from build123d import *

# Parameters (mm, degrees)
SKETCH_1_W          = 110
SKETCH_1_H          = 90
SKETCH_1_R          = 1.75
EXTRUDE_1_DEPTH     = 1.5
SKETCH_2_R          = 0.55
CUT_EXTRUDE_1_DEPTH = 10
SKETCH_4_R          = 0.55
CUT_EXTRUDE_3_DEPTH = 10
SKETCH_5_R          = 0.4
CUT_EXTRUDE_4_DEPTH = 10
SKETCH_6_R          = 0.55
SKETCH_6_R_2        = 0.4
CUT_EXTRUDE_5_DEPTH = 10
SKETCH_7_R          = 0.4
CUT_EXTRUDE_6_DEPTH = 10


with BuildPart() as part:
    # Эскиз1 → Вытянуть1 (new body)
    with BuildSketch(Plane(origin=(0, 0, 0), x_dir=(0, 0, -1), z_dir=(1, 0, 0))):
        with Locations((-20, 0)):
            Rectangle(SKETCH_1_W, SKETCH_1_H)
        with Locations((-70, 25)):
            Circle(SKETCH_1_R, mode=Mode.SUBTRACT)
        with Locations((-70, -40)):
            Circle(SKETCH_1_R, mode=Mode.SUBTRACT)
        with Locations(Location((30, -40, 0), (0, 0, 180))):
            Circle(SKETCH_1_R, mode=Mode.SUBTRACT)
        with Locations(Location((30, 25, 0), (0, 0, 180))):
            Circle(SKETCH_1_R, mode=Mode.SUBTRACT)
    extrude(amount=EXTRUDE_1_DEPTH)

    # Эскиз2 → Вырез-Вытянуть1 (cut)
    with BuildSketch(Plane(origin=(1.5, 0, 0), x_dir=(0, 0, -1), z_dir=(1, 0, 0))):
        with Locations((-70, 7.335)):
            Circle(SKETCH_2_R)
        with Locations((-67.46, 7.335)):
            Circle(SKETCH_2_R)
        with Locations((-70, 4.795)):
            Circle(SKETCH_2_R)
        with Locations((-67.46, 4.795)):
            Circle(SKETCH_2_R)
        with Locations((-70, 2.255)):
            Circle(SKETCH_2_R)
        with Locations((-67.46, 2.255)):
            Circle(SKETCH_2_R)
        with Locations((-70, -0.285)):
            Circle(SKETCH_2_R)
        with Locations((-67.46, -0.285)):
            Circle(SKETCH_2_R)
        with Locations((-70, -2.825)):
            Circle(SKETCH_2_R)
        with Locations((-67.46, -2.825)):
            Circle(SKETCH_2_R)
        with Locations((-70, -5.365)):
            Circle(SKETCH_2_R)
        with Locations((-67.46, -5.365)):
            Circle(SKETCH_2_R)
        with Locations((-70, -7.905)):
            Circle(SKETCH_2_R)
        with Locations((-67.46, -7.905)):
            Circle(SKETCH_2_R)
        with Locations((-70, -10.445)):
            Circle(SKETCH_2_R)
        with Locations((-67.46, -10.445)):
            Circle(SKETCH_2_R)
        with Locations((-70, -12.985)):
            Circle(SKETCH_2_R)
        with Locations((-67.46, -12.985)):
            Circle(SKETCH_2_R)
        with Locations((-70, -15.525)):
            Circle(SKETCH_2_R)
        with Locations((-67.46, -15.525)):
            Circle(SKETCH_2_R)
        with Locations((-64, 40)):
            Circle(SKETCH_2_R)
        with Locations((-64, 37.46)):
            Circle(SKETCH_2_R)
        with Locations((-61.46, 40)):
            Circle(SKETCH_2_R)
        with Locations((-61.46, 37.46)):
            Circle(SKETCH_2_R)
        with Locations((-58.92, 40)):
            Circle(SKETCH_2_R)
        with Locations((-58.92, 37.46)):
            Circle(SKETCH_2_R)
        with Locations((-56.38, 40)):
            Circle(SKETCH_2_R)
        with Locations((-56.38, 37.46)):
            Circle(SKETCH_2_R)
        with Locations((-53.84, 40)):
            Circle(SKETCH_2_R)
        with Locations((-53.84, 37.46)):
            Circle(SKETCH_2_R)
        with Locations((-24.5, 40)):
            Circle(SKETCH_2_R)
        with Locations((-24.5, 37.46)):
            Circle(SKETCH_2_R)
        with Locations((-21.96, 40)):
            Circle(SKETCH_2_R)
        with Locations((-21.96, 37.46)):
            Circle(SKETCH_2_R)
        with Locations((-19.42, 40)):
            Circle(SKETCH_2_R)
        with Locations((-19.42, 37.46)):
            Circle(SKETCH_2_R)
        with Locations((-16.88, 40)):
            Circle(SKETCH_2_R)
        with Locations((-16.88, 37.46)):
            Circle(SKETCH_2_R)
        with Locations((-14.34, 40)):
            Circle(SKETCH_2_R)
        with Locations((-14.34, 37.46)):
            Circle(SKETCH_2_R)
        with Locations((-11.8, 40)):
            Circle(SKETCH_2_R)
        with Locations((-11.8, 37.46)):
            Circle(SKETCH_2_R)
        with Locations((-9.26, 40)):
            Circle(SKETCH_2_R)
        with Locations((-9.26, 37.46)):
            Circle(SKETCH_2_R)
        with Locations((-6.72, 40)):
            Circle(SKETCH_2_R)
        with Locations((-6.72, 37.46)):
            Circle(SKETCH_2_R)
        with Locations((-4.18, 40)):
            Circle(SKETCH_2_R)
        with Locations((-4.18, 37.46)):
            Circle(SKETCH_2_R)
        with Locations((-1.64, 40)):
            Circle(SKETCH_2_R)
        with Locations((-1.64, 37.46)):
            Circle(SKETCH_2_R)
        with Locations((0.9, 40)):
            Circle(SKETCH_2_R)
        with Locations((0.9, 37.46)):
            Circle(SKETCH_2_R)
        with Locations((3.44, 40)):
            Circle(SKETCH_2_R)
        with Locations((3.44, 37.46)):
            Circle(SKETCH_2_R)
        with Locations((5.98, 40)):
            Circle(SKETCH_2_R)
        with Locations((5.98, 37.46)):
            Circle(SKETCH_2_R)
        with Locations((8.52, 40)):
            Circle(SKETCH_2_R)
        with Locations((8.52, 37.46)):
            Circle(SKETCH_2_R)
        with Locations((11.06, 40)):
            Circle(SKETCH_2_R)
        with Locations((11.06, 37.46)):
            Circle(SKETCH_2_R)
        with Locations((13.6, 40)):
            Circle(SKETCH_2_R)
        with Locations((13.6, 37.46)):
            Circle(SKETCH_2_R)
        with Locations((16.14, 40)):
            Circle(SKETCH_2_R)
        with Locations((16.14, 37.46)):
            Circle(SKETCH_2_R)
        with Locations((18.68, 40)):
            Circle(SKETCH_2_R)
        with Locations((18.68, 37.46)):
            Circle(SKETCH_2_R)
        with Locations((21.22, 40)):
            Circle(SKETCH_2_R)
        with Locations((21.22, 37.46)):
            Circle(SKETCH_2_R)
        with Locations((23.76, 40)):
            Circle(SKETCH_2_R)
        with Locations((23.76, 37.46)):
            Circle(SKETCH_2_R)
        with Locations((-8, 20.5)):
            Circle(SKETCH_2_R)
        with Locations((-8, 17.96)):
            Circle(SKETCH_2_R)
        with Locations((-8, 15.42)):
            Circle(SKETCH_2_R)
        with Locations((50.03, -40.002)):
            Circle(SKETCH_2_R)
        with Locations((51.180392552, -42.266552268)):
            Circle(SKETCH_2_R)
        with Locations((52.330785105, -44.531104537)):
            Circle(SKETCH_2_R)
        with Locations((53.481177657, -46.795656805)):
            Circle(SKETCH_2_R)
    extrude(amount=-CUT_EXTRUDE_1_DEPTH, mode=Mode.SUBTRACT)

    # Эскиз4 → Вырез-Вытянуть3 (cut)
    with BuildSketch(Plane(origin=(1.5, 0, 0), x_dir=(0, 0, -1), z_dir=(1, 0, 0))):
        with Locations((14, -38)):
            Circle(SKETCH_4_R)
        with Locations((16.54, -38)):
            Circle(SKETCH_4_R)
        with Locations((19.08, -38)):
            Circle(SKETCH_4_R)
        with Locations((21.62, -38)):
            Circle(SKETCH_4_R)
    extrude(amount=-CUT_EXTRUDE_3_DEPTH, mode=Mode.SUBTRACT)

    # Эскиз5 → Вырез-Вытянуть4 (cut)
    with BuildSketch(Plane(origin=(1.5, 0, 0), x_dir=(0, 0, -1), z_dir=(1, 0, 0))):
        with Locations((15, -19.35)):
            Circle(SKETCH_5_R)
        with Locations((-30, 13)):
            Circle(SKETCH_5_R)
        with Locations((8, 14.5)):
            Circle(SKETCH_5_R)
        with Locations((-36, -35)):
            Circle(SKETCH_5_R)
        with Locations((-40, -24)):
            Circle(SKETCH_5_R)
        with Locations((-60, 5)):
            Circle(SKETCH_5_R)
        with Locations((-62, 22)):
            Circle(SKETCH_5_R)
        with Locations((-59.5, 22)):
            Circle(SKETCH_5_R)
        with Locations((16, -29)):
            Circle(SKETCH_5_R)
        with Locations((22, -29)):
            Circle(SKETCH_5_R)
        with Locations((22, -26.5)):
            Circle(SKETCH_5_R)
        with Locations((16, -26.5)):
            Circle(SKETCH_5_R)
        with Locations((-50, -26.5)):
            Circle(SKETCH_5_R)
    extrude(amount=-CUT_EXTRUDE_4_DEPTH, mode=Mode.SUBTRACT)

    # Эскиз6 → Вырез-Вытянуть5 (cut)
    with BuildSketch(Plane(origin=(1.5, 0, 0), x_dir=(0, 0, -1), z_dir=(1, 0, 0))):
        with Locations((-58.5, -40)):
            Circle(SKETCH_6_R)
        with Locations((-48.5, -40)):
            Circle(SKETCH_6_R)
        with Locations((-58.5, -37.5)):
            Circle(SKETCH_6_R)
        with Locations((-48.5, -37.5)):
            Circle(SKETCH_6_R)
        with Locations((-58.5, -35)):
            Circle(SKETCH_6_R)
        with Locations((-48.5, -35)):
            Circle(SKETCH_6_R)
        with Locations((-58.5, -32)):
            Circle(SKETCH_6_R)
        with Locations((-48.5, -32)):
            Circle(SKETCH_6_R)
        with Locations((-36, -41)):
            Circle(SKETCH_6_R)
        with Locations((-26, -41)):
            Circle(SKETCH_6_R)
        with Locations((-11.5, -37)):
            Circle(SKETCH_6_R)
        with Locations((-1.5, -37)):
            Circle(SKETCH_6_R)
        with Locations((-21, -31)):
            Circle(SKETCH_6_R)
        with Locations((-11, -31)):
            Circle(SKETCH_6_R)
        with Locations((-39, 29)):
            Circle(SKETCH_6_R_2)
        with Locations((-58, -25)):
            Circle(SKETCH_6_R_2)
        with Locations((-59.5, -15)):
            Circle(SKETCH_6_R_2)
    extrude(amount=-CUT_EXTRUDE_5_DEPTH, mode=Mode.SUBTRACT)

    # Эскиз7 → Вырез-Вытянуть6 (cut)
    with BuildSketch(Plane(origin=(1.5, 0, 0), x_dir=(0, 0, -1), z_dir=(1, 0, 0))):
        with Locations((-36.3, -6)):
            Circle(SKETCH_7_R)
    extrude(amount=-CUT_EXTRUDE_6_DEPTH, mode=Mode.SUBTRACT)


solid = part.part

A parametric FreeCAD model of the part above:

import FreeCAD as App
import Part
import Sketcher

V = App.Vector

doc = App.newDocument("Part")
params = doc.addObject("Spreadsheet::Sheet", "Params")
for row, (alias, value) in enumerate([
    ("sketch1_diameter", "3.5 mm"),
    ("sketch1_width", "90 mm"),
    ("sketch1_height", "110 mm"),
    ("pad1_length", "1.5 mm"),
    ("sketch2_diameter", "1.1 mm"),
    ("pocket1_length", "10 mm"),
    ("sketch3_diameter", "1.1 mm"),
    ("pocket2_length", "10 mm"),
    ("sketch4_diameter", "0.8 mm"),
    ("pocket3_length", "10 mm"),
    ("sketch5_diameter", "1.1 mm"),
    ("sketch5_diameter2", "0.8 mm"),
    ("pocket4_length", "10 mm"),
    ("sketch6_diameter", "0.8 mm"),
    ("pocket5_length", "10 mm"),
], start=1):
    params.set(f"A{row}", alias)
    params.set(f"B{row}", "=" + value)
    params.setAlias(f"B{row}", alias)

body = doc.addObject("PartDesign::Body", "Body")

sketch1 = body.newObject("Sketcher::SketchObject", "Sketch")
sketch1.AttachmentSupport = (doc.getObject("YZ_Plane"), [""])
sketch1.MapMode = "FlatFace"
sketch1.addGeometry([
    Part.LineSegment(V(45, 75, 0), V(-45, 75, 0)),
    Part.LineSegment(V(-45, 75, 0), V(-45, -35, 0)),
    Part.LineSegment(V(-45, -35, 0), V(45, -35, 0)),
    Part.LineSegment(V(45, -35, 0), V(45, 75, 0)),
    Part.Circle(V(-40, 70, 0), V(0, 0, 1), 1.8),
    Part.Circle(V(-40, -30, 0), V(0, 0, 1), 1.8),
    Part.Circle(V(25, 70, 0), V(0, 0, 1), 1.8),
    Part.Circle(V(25, -30, 0), V(0, 0, 1), 1.8),
], False)
sketch1.addConstraint([
    Sketcher.Constraint("Coincident", 0, 2, 1, 1),
    Sketcher.Constraint("Coincident", 1, 2, 2, 1),
    Sketcher.Constraint("Coincident", 2, 2, 3, 1),
    Sketcher.Constraint("Coincident", 3, 2, 0, 1),
    Sketcher.Constraint("Horizontal", 0),
    Sketcher.Constraint("Vertical", 1),
    Sketcher.Constraint("Horizontal", 2),
    Sketcher.Constraint("Vertical", 3),
    Sketcher.Constraint("Equal", 4, 5),
    Sketcher.Constraint("Equal", 5, 6),
    Sketcher.Constraint("Equal", 6, 7),
    Sketcher.Constraint("Horizontal", 4, 3, 6, 3),
    Sketcher.Constraint("Horizontal", 5, 3, 7, 3),
    Sketcher.Constraint("Vertical", 4, 3, 5, 3),
    Sketcher.Constraint("Vertical", 6, 3, 7, 3),
    Sketcher.Constraint("Diameter", 4, 3.5),
    Sketcher.Constraint("DistanceX", 0, 2, 0, 1, 90.0),
    Sketcher.Constraint("DistanceY", 1, 2, 1, 1, 110.0),
    Sketcher.Constraint("DistanceX", 4, 3, -1, 1, 40.0),
    Sketcher.Constraint("DistanceY", -1, 1, 4, 3, 70.0),
    Sketcher.Constraint("DistanceY", 5, 3, -1, 1, 30.0),
    Sketcher.Constraint("DistanceX", -1, 1, 6, 3, 25.0),
    Sketcher.Constraint("DistanceX", 0, 2, -1, 1, 45.0),
    Sketcher.Constraint("DistanceY", -1, 1, 0, 2, 75.0),
])
sketch1.setExpression("Constraints[15]", "Params.sketch1_diameter")
sketch1.setExpression("Constraints[16]", "Params.sketch1_width")
sketch1.setExpression("Constraints[17]", "Params.sketch1_height")
pad1 = body.newObject("PartDesign::Pad", "Pad")
pad1.Profile = sketch1
pad1.setExpression("Length", "Params.pad1_length")

sketch2 = body.newObject("Sketcher::SketchObject", "Sketch001")
sketch2.AttachmentSupport = (doc.getObject("YZ_Plane"), [""])
sketch2.MapMode = "FlatFace"
sketch2.AttachmentOffset = App.Placement(V(0, 0, 1.5), App.Rotation())
sketch2.addGeometry([
    Part.Circle(V(7.3, 70, 0), V(0, 0, 1), 0.6),
    Part.Circle(V(7.3, 67.5, 0), V(0, 0, 1), 0.6),
    Part.Circle(V(4.8, 70, 0), V(0, 0, 1), 0.6),
    Part.Circle(V(4.8, 67.5, 0), V(0, 0, 1), 0.6),
    Part.Circle(V(2.3, 70, 0), V(0, 0, 1), 0.6),
    Part.Circle(V(2.3, 67.5, 0), V(0, 0, 1), 0.6),
    Part.Circle(V(-0.3, 70, 0), V(0, 0, 1), 0.6),
    Part.Circle(V(-0.3, 67.5, 0), V(0, 0, 1), 0.6),
    Part.Circle(V(-2.8, 70, 0), V(0, 0, 1), 0.6),
    Part.Circle(V(-2.8, 67.5, 0), V(0, 0, 1), 0.6),
    Part.Circle(V(-5.4, 70, 0), V(0, 0, 1), 0.6),
    Part.Circle(V(-5.4, 67.5, 0), V(0, 0, 1), 0.6),
    Part.Circle(V(-7.9, 70, 0), V(0, 0, 1), 0.6),
    Part.Circle(V(-7.9, 67.5, 0), V(0, 0, 1), 0.6),
    Part.Circle(V(-10.4, 70, 0), V(0, 0, 1), 0.6),
    Part.Circle(V(-10.4, 67.5, 0), V(0, 0, 1), 0.6),
    Part.Circle(V(-13, 70, 0), V(0, 0, 1), 0.6),
    Part.Circle(V(-13, 67.5, 0), V(0, 0, 1), 0.6),
    Part.Circle(V(-15.5, 70, 0), V(0, 0, 1), 0.6),
    Part.Circle(V(-15.5, 67.5, 0), V(0, 0, 1), 0.6),
    Part.Circle(V(40, 64, 0), V(0, 0, 1), 0.6),
    Part.Circle(V(37.5, 64, 0), V(0, 0, 1), 0.6),
    Part.Circle(V(40, 61.5, 0), V(0, 0, 1), 0.6),
    Part.Circle(V(37.5, 61.5, 0), V(0, 0, 1), 0.6),
    Part.Circle(V(40, 58.9, 0), V(0, 0, 1), 0.6),
    Part.Circle(V(37.5, 58.9, 0), V(0, 0, 1), 0.6),
    Part.Circle(V(40, 56.4, 0), V(0, 0, 1), 0.6),
    Part.Circle(V(37.5, 56.4, 0), V(0, 0, 1), 0.6),
    Part.Circle(V(40, 53.8, 0), V(0, 0, 1), 0.6),
    Part.Circle(V(37.5, 53.8, 0), V(0, 0, 1), 0.6),
    Part.Circle(V(40, 24.5, 0), V(0, 0, 1), 0.6),
    Part.Circle(V(37.5, 24.5, 0), V(0, 0, 1), 0.6),
    Part.Circle(V(40, 22, 0), V(0, 0, 1), 0.6),
    Part.Circle(V(37.5, 22, 0), V(0, 0, 1), 0.6),
    Part.Circle(V(40, 19.4, 0), V(0, 0, 1), 0.6),
    Part.Circle(V(37.5, 19.4, 0), V(0, 0, 1), 0.6),
    Part.Circle(V(40, 16.9, 0), V(0, 0, 1), 0.6),
    Part.Circle(V(37.5, 16.9, 0), V(0, 0, 1), 0.6),
    Part.Circle(V(40, 14.3, 0), V(0, 0, 1), 0.6),
    Part.Circle(V(37.5, 14.3, 0), V(0, 0, 1), 0.6),
    Part.Circle(V(40, 11.8, 0), V(0, 0, 1), 0.6),
    Part.Circle(V(37.5, 11.8, 0), V(0, 0, 1), 0.6),
    Part.Circle(V(40, 9.3, 0), V(0, 0, 1), 0.6),
    Part.Circle(V(37.5, 9.3, 0), V(0, 0, 1), 0.6),
    Part.Circle(V(40, 6.7, 0), V(0, 0, 1), 0.6),
    Part.Circle(V(37.5, 6.7, 0), V(0, 0, 1), 0.6),
    Part.Circle(V(40, 4.2, 0), V(0, 0, 1), 0.6),
    Part.Circle(V(37.5, 4.2, 0), V(0, 0, 1), 0.6),
    Part.Circle(V(40, 1.6, 0), V(0, 0, 1), 0.6),
    Part.Circle(V(37.5, 1.6, 0), V(0, 0, 1), 0.6),
    Part.Circle(V(40, -0.9, 0), V(0, 0, 1), 0.6),
    Part.Circle(V(37.5, -0.9, 0), V(0, 0, 1), 0.6),
    Part.Circle(V(40, -3.4, 0), V(0, 0, 1), 0.6),
    Part.Circle(V(37.5, -3.4, 0), V(0, 0, 1), 0.6),
    Part.Circle(V(40, -6, 0), V(0, 0, 1), 0.6),
    Part.Circle(V(37.5, -6, 0), V(0, 0, 1), 0.6),
    Part.Circle(V(40, -8.5, 0), V(0, 0, 1), 0.6),
    Part.Circle(V(37.5, -8.5, 0), V(0, 0, 1), 0.6),
    Part.Circle(V(40, -11.1, 0), V(0, 0, 1), 0.6),
    Part.Circle(V(37.5, -11.1, 0), V(0, 0, 1), 0.6),
    Part.Circle(V(40, -13.6, 0), V(0, 0, 1), 0.6),
    Part.Circle(V(37.5, -13.6, 0), V(0, 0, 1), 0.6),
    Part.Circle(V(40, -16.1, 0), V(0, 0, 1), 0.6),
    Part.Circle(V(37.5, -16.1, 0), V(0, 0, 1), 0.6),
    Part.Circle(V(40, -18.7, 0), V(0, 0, 1), 0.6),
    Part.Circle(V(37.5, -18.7, 0), V(0, 0, 1), 0.6),
    Part.Circle(V(40, -21.2, 0), V(0, 0, 1), 0.6),
    Part.Circle(V(37.5, -21.2, 0), V(0, 0, 1), 0.6),
    Part.Circle(V(40, -23.8, 0), V(0, 0, 1), 0.6),
    Part.Circle(V(37.5, -23.8, 0), V(0, 0, 1), 0.6),
    Part.Circle(V(20.5, 8, 0), V(0, 0, 1), 0.6),
    Part.Circle(V(18, 8, 0), V(0, 0, 1), 0.6),
    Part.Circle(V(15.4, 8, 0), V(0, 0, 1), 0.6),
    Part.Circle(V(-40, -50, 0), V(0, 0, 1), 0.6),
    Part.Circle(V(-42.3, -51.2, 0), V(0, 0, 1), 0.6),
    Part.Circle(V(-44.5, -52.3, 0), V(0, 0, 1), 0.6),
    Part.Circle(V(-46.8, -53.5, 0), V(0, 0, 1), 0.6),
], False)
sketch2.addConstraint([
    Sketcher.Constraint("Equal", 0, 1),
    Sketcher.Constraint("Equal", 1, 2),
    Sketcher.Constraint("Equal", 2, 3),
    Sketcher.Constraint("Equal", 3, 4),
    Sketcher.Constraint("Equal", 4, 5),
    Sketcher.Constraint("Equal", 5, 6),
    Sketcher.Constraint("Equal", 6, 7),
    Sketcher.Constraint("Equal", 7, 8),
    Sketcher.Constraint("Equal", 8, 9),
    Sketcher.Constraint("Equal", 9, 10),
    Sketcher.Constraint("Equal", 10, 11),
    Sketcher.Constraint("Equal", 11, 12),
    Sketcher.Constraint("Equal", 12, 13),
    Sketcher.Constraint("Equal", 13, 14),
    Sketcher.Constraint("Equal", 14, 15),
    Sketcher.Constraint("Equal", 15, 16),
    Sketcher.Constraint("Equal", 16, 17),
    Sketcher.Constraint("Equal", 17, 18),
    Sketcher.Constraint("Equal", 18, 19),
    Sketcher.Constraint("Equal", 19, 20),
    Sketcher.Constraint("Equal", 20, 21),
    Sketcher.Constraint("Equal", 21, 22),
    Sketcher.Constraint("Equal", 22, 23),
    Sketcher.Constraint("Equal", 23, 24),
    Sketcher.Constraint("Equal", 24, 25),
    Sketcher.Constraint("Equal", 25, 26),
    Sketcher.Constraint("Equal", 26, 27),
    Sketcher.Constraint("Equal", 27, 28),
    Sketcher.Constraint("Equal", 28, 29),
    Sketcher.Constraint("Equal", 29, 30),
    Sketcher.Constraint("Equal", 30, 31),
    Sketcher.Constraint("Equal", 31, 32),
    Sketcher.Constraint("Equal", 32, 33),
    Sketcher.Constraint("Equal", 33, 34),
    Sketcher.Constraint("Equal", 34, 35),
    Sketcher.Constraint("Equal", 35, 36),
    Sketcher.Constraint("Equal", 36, 37),
    Sketcher.Constraint("Equal", 37, 38),
    Sketcher.Constraint("Equal", 38, 39),
    Sketcher.Constraint("Equal", 39, 40),
    Sketcher.Constraint("Equal", 40, 41),
    Sketcher.Constraint("Equal", 41, 42),
    Sketcher.Constraint("Equal", 42, 43),
    Sketcher.Constraint("Equal", 43, 44),
    Sketcher.Constraint("Equal", 44, 45),
    Sketcher.Constraint("Equal", 45, 46),
    Sketcher.Constraint("Equal", 46, 47),
    Sketcher.Constraint("Equal", 47, 48),
    Sketcher.Constraint("Equal", 48, 49),
    Sketcher.Constraint("Equal", 49, 50),
    Sketcher.Constraint("Equal", 50, 51),
    Sketcher.Constraint("Equal", 51, 52),
    Sketcher.Constraint("Equal", 52, 53),
    Sketcher.Constraint("Equal", 53, 54),
    Sketcher.Constraint("Equal", 54, 55),
    Sketcher.Constraint("Equal", 55, 56),
    Sketcher.Constraint("Equal", 56, 57),
    Sketcher.Constraint("Equal", 57, 58),
    Sketcher.Constraint("Equal", 58, 59),
    Sketcher.Constraint("Equal", 59, 60),
    Sketcher.Constraint("Equal", 60, 61),
    Sketcher.Constraint("Equal", 61, 62),
    Sketcher.Constraint("Equal", 62, 63),
    Sketcher.Constraint("Equal", 63, 64),
    Sketcher.Constraint("Equal", 64, 65),
    Sketcher.Constraint("Equal", 65, 66),
    Sketcher.Constraint("Equal", 66, 67),
    Sketcher.Constraint("Equal", 67, 68),
    Sketcher.Constraint("Equal", 68, 69),
    Sketcher.Constraint("Equal", 69, 70),
    Sketcher.Constraint("Equal", 70, 71),
    Sketcher.Constraint("Equal", 71, 72),
    Sketcher.Constraint("Equal", 72, 73),
    Sketcher.Constraint("Equal", 73, 74),
    Sketcher.Constraint("Equal", 74, 75),
    Sketcher.Constraint("Equal", 75, 76),
    Sketcher.Constraint("Horizontal", 0, 3, 2, 3),
    Sketcher.Constraint("Horizontal", 1, 3, 3, 3),
    Sketcher.Constraint("Horizontal", 2, 3, 4, 3),
    Sketcher.Constraint("Horizontal", 3, 3, 5, 3),
    Sketcher.Constraint("Horizontal", 4, 3, 6, 3),
    Sketcher.Constraint("Horizontal", 5, 3, 7, 3),
    Sketcher.Constraint("Horizontal", 6, 3, 8, 3),
    Sketcher.Constraint("Horizontal", 7, 3, 9, 3),
    Sketcher.Constraint("Horizontal", 8, 3, 10, 3),
    Sketcher.Constraint("Horizontal", 9, 3, 11, 3),
    Sketcher.Constraint("Horizontal", 10, 3, 12, 3),
    Sketcher.Constraint("Horizontal", 11, 3, 13, 3),
    Sketcher.Constraint("Horizontal", 12, 3, 14, 3),
    Sketcher.Constraint("Horizontal", 13, 3, 15, 3),
    Sketcher.Constraint("Horizontal", 14, 3, 16, 3),
    Sketcher.Constraint("Horizontal", 15, 3, 17, 3),
    Sketcher.Constraint("Horizontal", 16, 3, 18, 3),
    Sketcher.Constraint("Horizontal", 17, 3, 19, 3),
    Sketcher.Constraint("Horizontal", 20, 3, 21, 3),
    Sketcher.Constraint("Horizontal", 22, 3, 23, 3),
    Sketcher.Constraint("Horizontal", 24, 3, 25, 3),
    Sketcher.Constraint("Horizontal", 26, 3, 27, 3),
    Sketcher.Constraint("Horizontal", 28, 3, 29, 3),
    Sketcher.Constraint("Horizontal", 30, 3, 31, 3),
    Sketcher.Constraint("Horizontal", 32, 3, 33, 3),
    Sketcher.Constraint("Horizontal", 34, 3, 35, 3),
    Sketcher.Constraint("Horizontal", 36, 3, 37, 3),
    Sketcher.Constraint("Horizontal", 38, 3, 39, 3),
    Sketcher.Constraint("Horizontal", 40, 3, 41, 3),
    Sketcher.Constraint("Horizontal", 42, 3, 43, 3),
    Sketcher.Constraint("Horizontal", 44, 3, 45, 3),
    Sketcher.Constraint("Horizontal", 46, 3, 47, 3),
    Sketcher.Constraint("Horizontal", 48, 3, 49, 3),
    Sketcher.Constraint("Horizontal", 50, 3, 51, 3),
    Sketcher.Constraint("Horizontal", 52, 3, 53, 3),
    Sketcher.Constraint("Horizontal", 54, 3, 55, 3),
    Sketcher.Constraint("Horizontal", 56, 3, 57, 3),
    Sketcher.Constraint("Horizontal", 58, 3, 59, 3),
    Sketcher.Constraint("Horizontal", 60, 3, 61, 3),
    Sketcher.Constraint("Horizontal", 62, 3, 63, 3),
    Sketcher.Constraint("Horizontal", 64, 3, 65, 3),
    Sketcher.Constraint("Horizontal", 66, 3, 67, 3),
    Sketcher.Constraint("Horizontal", 68, 3, 69, 3),
    Sketcher.Constraint("Horizontal", 70, 3, 71, 3),
    Sketcher.Constraint("Horizontal", 71, 3, 72, 3),
    Sketcher.Constraint("Vertical", 0, 3, 1, 3),
    Sketcher.Constraint("Vertical", 2, 3, 3, 3),
    Sketcher.Constraint("Vertical", 4, 3, 5, 3),
    Sketcher.Constraint("Vertical", 6, 3, 7, 3),
    Sketcher.Constraint("Vertical", 8, 3, 9, 3),
    Sketcher.Constraint("Vertical", 10, 3, 11, 3),
    Sketcher.Constraint("Vertical", 12, 3, 13, 3),
    Sketcher.Constraint("Vertical", 14, 3, 15, 3),
    Sketcher.Constraint("Vertical", 16, 3, 17, 3),
    Sketcher.Constraint("Vertical", 18, 3, 19, 3),
    Sketcher.Constraint("Vertical", 20, 3, 22, 3),
    Sketcher.Constraint("Vertical", 21, 3, 23, 3),
    Sketcher.Constraint("Vertical", 22, 3, 24, 3),
    Sketcher.Constraint("Vertical", 23, 3, 25, 3),
    Sketcher.Constraint("Vertical", 24, 3, 26, 3),
    Sketcher.Constraint("Vertical", 25, 3, 27, 3),
    Sketcher.Constraint("Vertical", 26, 3, 28, 3),
    Sketcher.Constraint("Vertical", 27, 3, 29, 3),
    Sketcher.Constraint("Vertical", 28, 3, 30, 3),
    Sketcher.Constraint("Vertical", 29, 3, 31, 3),
    Sketcher.Constraint("Vertical", 30, 3, 32, 3),
    Sketcher.Constraint("Vertical", 31, 3, 33, 3),
    Sketcher.Constraint("Vertical", 32, 3, 34, 3),
    Sketcher.Constraint("Vertical", 33, 3, 35, 3),
    Sketcher.Constraint("Vertical", 34, 3, 36, 3),
    Sketcher.Constraint("Vertical", 35, 3, 37, 3),
    Sketcher.Constraint("Vertical", 36, 3, 38, 3),
    Sketcher.Constraint("Vertical", 37, 3, 39, 3),
    Sketcher.Constraint("Vertical", 38, 3, 40, 3),
    Sketcher.Constraint("Vertical", 39, 3, 41, 3),
    Sketcher.Constraint("Vertical", 40, 3, 42, 3),
    Sketcher.Constraint("Vertical", 41, 3, 43, 3),
    Sketcher.Constraint("Vertical", 42, 3, 44, 3),
    Sketcher.Constraint("Vertical", 43, 3, 45, 3),
    Sketcher.Constraint("Vertical", 44, 3, 46, 3),
    Sketcher.Constraint("Vertical", 45, 3, 47, 3),
    Sketcher.Constraint("Vertical", 46, 3, 48, 3),
    Sketcher.Constraint("Vertical", 47, 3, 49, 3),
    Sketcher.Constraint("Vertical", 48, 3, 50, 3),
    Sketcher.Constraint("Vertical", 49, 3, 51, 3),
    Sketcher.Constraint("Vertical", 50, 3, 52, 3),
    Sketcher.Constraint("Vertical", 51, 3, 53, 3),
    Sketcher.Constraint("Vertical", 52, 3, 54, 3),
    Sketcher.Constraint("Vertical", 53, 3, 55, 3),
    Sketcher.Constraint("Vertical", 54, 3, 56, 3),
    Sketcher.Constraint("Vertical", 55, 3, 57, 3),
    Sketcher.Constraint("Vertical", 56, 3, 58, 3),
    Sketcher.Constraint("Vertical", 57, 3, 59, 3),
    Sketcher.Constraint("Vertical", 58, 3, 60, 3),
    Sketcher.Constraint("Vertical", 59, 3, 61, 3),
    Sketcher.Constraint("Vertical", 60, 3, 62, 3),
    Sketcher.Constraint("Vertical", 61, 3, 63, 3),
    Sketcher.Constraint("Vertical", 62, 3, 64, 3),
    Sketcher.Constraint("Vertical", 63, 3, 65, 3),
    Sketcher.Constraint("Vertical", 64, 3, 66, 3),
    Sketcher.Constraint("Vertical", 65, 3, 67, 3),
    Sketcher.Constraint("Vertical", 66, 3, 68, 3),
    Sketcher.Constraint("Vertical", 67, 3, 69, 3),
    Sketcher.Constraint("Diameter", 0, 1.1),
    Sketcher.Constraint("DistanceY", -1, 1, 0, 3, 70.0),
    Sketcher.Constraint("DistanceX", -1, 1, 20, 3, 40.0),
    Sketcher.Constraint("DistanceY", -1, 1, 20, 3, 64.0),
    Sketcher.Constraint("DistanceY", -1, 1, 70, 3, 8.0),
    Sketcher.Constraint("DistanceY", -1, 1, 30, 3, 24.5),
    Sketcher.Constraint("DistanceY", -1, 1, 40, 3, 11.8),
    Sketcher.Constraint("DistanceY", 50, 3, -1, 1, 0.9),
    Sketcher.Constraint("DistanceY", 60, 3, -1, 1, 13.6),
    Sketcher.Constraint("DistanceX", -1, 1, 70, 3, 20.5),
    Sketcher.Constraint("DistanceY", -1, 1, 1, 3, 67.46),
    Sketcher.Constraint("DistanceX", -1, 1, 21, 3, 37.46),
    Sketcher.Constraint("DistanceY", -1, 1, 22, 3, 61.46),
    Sketcher.Constraint("DistanceY", -1, 1, 24, 3, 58.92),
    Sketcher.Constraint("DistanceY", -1, 1, 26, 3, 56.38),
    Sketcher.Constraint("DistanceY", -1, 1, 28, 3, 53.84),
    Sketcher.Constraint("DistanceY", -1, 1, 32, 3, 21.96),
    Sketcher.Constraint("DistanceY", -1, 1, 34, 3, 19.42),
    Sketcher.Constraint("DistanceY", -1, 1, 36, 3, 16.88),
    Sketcher.Constraint("DistanceY", -1, 1, 38, 3, 14.34),
    Sketcher.Constraint("DistanceY", -1, 1, 42, 3, 9.26),
    Sketcher.Constraint("DistanceY", -1, 1, 44, 3, 6.72),
    Sketcher.Constraint("DistanceY", -1, 1, 46, 3, 4.18),
    Sketcher.Constraint("DistanceY", -1, 1, 48, 3, 1.64),
    Sketcher.Constraint("DistanceY", 52, 3, -1, 1, 3.44),
    Sketcher.Constraint("DistanceY", 54, 3, -1, 1, 5.98),
    Sketcher.Constraint("DistanceY", 56, 3, -1, 1, 8.52),
    Sketcher.Constraint("DistanceY", 58, 3, -1, 1, 11.06),
    Sketcher.Constraint("DistanceY", 62, 3, -1, 1, 16.14),
    Sketcher.Constraint("DistanceY", 64, 3, -1, 1, 18.68),
    Sketcher.Constraint("DistanceY", 66, 3, -1, 1, 21.22),
    Sketcher.Constraint("DistanceY", 68, 3, -1, 1, 23.76),
    Sketcher.Constraint("DistanceX", -1, 1, 71, 3, 17.96),
    Sketcher.Constraint("DistanceX", -1, 1, 72, 3, 15.42),
    Sketcher.Constraint("DistanceY", 73, 3, -1, 1, 50.03),
    Sketcher.Constraint("DistanceX", -1, 1, 0, 3, 7.335),
    Sketcher.Constraint("DistanceX", -1, 1, 2, 3, 4.795),
    Sketcher.Constraint("DistanceX", -1, 1, 4, 3, 2.255),
    Sketcher.Constraint("DistanceX", 6, 3, -1, 1, 0.285),
    Sketcher.Constraint("DistanceX", 8, 3, -1, 1, 2.825),
    Sketcher.Constraint("DistanceX", 10, 3, -1, 1, 5.365),
    Sketcher.Constraint("DistanceX", 12, 3, -1, 1, 7.905),
    Sketcher.Constraint("DistanceX", 14, 3, -1, 1, 10.445),
    Sketcher.Constraint("DistanceX", 16, 3, -1, 1, 12.985),
    Sketcher.Constraint("DistanceX", 18, 3, -1, 1, 15.525),
    Sketcher.Constraint("DistanceX", 73, 3, -1, 1, 40.002),
    Sketcher.Constraint("DistanceX", 74, 3, -1, 1, 42.266552),
    Sketcher.Constraint("DistanceY", 74, 3, -1, 1, 51.180393),
    Sketcher.Constraint("DistanceX", 75, 3, -1, 1, 44.531105),
    Sketcher.Constraint("DistanceY", 75, 3, -1, 1, 52.330785),
    Sketcher.Constraint("DistanceX", 76, 3, -1, 1, 46.795657),
    Sketcher.Constraint("DistanceY", 76, 3, -1, 1, 53.481178),
])
sketch2.setExpression("Constraints[179]", "Params.sketch2_diameter")
pocket1 = body.newObject("PartDesign::Pocket", "Pocket")
pocket1.Profile = sketch2
pocket1.setExpression("Length", "Params.pocket1_length")

sketch3 = body.newObject("Sketcher::SketchObject", "Sketch002")
sketch3.AttachmentSupport = (doc.getObject("YZ_Plane"), [""])
sketch3.MapMode = "FlatFace"
sketch3.AttachmentOffset = App.Placement(V(0, 0, 1.5), App.Rotation())
sketch3.addGeometry([
    Part.Circle(V(-38, -14, 0), V(0, 0, 1), 0.6),
    Part.Circle(V(-38, -16.5, 0), V(0, 0, 1), 0.6),
    Part.Circle(V(-38, -19.1, 0), V(0, 0, 1), 0.6),
    Part.Circle(V(-38, -21.6, 0), V(0, 0, 1), 0.6),
], False)
sketch3.addConstraint([
    Sketcher.Constraint("Equal", 0, 1),
    Sketcher.Constraint("Equal", 1, 2),
    Sketcher.Constraint("Equal", 2, 3),
    Sketcher.Constraint("Vertical", 0, 3, 1, 3),
    Sketcher.Constraint("Vertical", 1, 3, 2, 3),
    Sketcher.Constraint("Vertical", 2, 3, 3, 3),
    Sketcher.Constraint("Diameter", 0, 1.1),
    Sketcher.Constraint("DistanceX", 0, 3, -1, 1, 38.0),
    Sketcher.Constraint("DistanceY", 0, 3, -1, 1, 14.0),
    Sketcher.Constraint("DistanceY", 1, 3, -1, 1, 16.54),
    Sketcher.Constraint("DistanceY", 2, 3, -1, 1, 19.08),
    Sketcher.Constraint("DistanceY", 3, 3, -1, 1, 21.62),
])
sketch3.setExpression("Constraints[6]", "Params.sketch3_diameter")
pocket2 = body.newObject("PartDesign::Pocket", "Pocket001")
pocket2.Profile = sketch3
pocket2.setExpression("Length", "Params.pocket2_length")

sketch4 = body.newObject("Sketcher::SketchObject", "Sketch003")
sketch4.AttachmentSupport = (doc.getObject("YZ_Plane"), [""])
sketch4.MapMode = "FlatFace"
sketch4.AttachmentOffset = App.Placement(V(0, 0, 1.5), App.Rotation())
sketch4.addGeometry([
    Part.Circle(V(-19.35, -15, 0), V(0, 0, 1), 0.4),
    Part.Circle(V(13, 30, 0), V(0, 0, 1), 0.4),
    Part.Circle(V(14.5, -8, 0), V(0, 0, 1), 0.4),
    Part.Circle(V(-35, 36, 0), V(0, 0, 1), 0.4),
    Part.Circle(V(-24, 40, 0), V(0, 0, 1), 0.4),
    Part.Circle(V(5, 60, 0), V(0, 0, 1), 0.4),
    Part.Circle(V(22, 62, 0), V(0, 0, 1), 0.4),
    Part.Circle(V(22, 59.5, 0), V(0, 0, 1), 0.4),
    Part.Circle(V(-29, -16, 0), V(0, 0, 1), 0.4),
    Part.Circle(V(-29, -22, 0), V(0, 0, 1), 0.4),
    Part.Circle(V(-26.5, -22, 0), V(0, 0, 1), 0.4),
    Part.Circle(V(-26.5, -16, 0), V(0, 0, 1), 0.4),
    Part.Circle(V(-26.5, 50, 0), V(0, 0, 1), 0.4),
], False)
sketch4.addConstraint([
    Sketcher.Constraint("Equal", 0, 1),
    Sketcher.Constraint("Equal", 1, 2),
    Sketcher.Constraint("Equal", 2, 3),
    Sketcher.Constraint("Equal", 3, 4),
    Sketcher.Constraint("Equal", 4, 5),
    Sketcher.Constraint("Equal", 5, 6),
    Sketcher.Constraint("Equal", 6, 7),
    Sketcher.Constraint("Equal", 7, 8),
    Sketcher.Constraint("Equal", 8, 9),
    Sketcher.Constraint("Equal", 9, 10),
    Sketcher.Constraint("Equal", 10, 11),
    Sketcher.Constraint("Equal", 11, 12),
    Sketcher.Constraint("Horizontal", 9, 3, 10, 3),
    Sketcher.Constraint("Horizontal", 8, 3, 11, 3),
    Sketcher.Constraint("Vertical", 6, 3, 7, 3),
    Sketcher.Constraint("Vertical", 8, 3, 9, 3),
    Sketcher.Constraint("Vertical", 10, 3, 11, 3),
    Sketcher.Constraint("Vertical", 11, 3, 12, 3),
    Sketcher.Constraint("Diameter", 0, 0.8),
    Sketcher.Constraint("DistanceY", 0, 3, -1, 1, 15.0),
    Sketcher.Constraint("DistanceX", -1, 1, 1, 3, 13.0),
    Sketcher.Constraint("DistanceY", -1, 1, 1, 3, 30.0),
    Sketcher.Constraint("DistanceY", 2, 3, -1, 1, 8.0),
    Sketcher.Constraint("DistanceX", 3, 3, -1, 1, 35.0),
    Sketcher.Constraint("DistanceY", -1, 1, 3, 3, 36.0),
    Sketcher.Constraint("DistanceX", 4, 3, -1, 1, 24.0),
    Sketcher.Constraint("DistanceY", -1, 1, 4, 3, 40.0),
    Sketcher.Constraint("DistanceX", -1, 1, 5, 3, 5.0),
    Sketcher.Constraint("DistanceY", -1, 1, 5, 3, 60.0),
    Sketcher.Constraint("DistanceX", -1, 1, 6, 3, 22.0),
    Sketcher.Constraint("DistanceY", -1, 1, 6, 3, 62.0),
    Sketcher.Constraint("DistanceX", 8, 3, -1, 1, 29.0),
    Sketcher.Constraint("DistanceY", 8, 3, -1, 1, 16.0),
    Sketcher.Constraint("DistanceY", 9, 3, -1, 1, 22.0),
    Sketcher.Constraint("DistanceY", -1, 1, 12, 3, 50.0),
    Sketcher.Constraint("DistanceX", 10, 3, 2, 3, 41.0),
    Sketcher.Constraint("DistanceX", -1, 1, 2, 3, 14.5),
    Sketcher.Constraint("DistanceY", -1, 1, 7, 3, 59.5),
    Sketcher.Constraint("DistanceX", 0, 3, -1, 1, 19.35),
])
sketch4.setExpression("Constraints[18]", "Params.sketch4_diameter")
pocket3 = body.newObject("PartDesign::Pocket", "Pocket002")
pocket3.Profile = sketch4
pocket3.setExpression("Length", "Params.pocket3_length")

sketch5 = body.newObject("Sketcher::SketchObject", "Sketch004")
sketch5.AttachmentSupport = (doc.getObject("YZ_Plane"), [""])
sketch5.MapMode = "FlatFace"
sketch5.AttachmentOffset = App.Placement(V(0, 0, 1.5), App.Rotation())
sketch5.addGeometry([
    Part.Circle(V(-40, 58.5, 0), V(0, 0, 1), 0.55),
    Part.Circle(V(-40, 48.5, 0), V(0, 0, 1), 0.55),
    Part.Circle(V(-37.5, 58.5, 0), V(0, 0, 1), 0.55),
    Part.Circle(V(-37.5, 48.5, 0), V(0, 0, 1), 0.55),
    Part.Circle(V(-35, 58.5, 0), V(0, 0, 1), 0.55),
    Part.Circle(V(-35, 48.5, 0), V(0, 0, 1), 0.55),
    Part.Circle(V(-32, 58.5, 0), V(0, 0, 1), 0.55),
    Part.Circle(V(-32, 48.5, 0), V(0, 0, 1), 0.55),
    Part.Circle(V(-41, 36, 0), V(0, 0, 1), 0.55),
    Part.Circle(V(-41, 26, 0), V(0, 0, 1), 0.55),
    Part.Circle(V(-37, 11.5, 0), V(0, 0, 1), 0.55),
    Part.Circle(V(-37, 1.5, 0), V(0, 0, 1), 0.55),
    Part.Circle(V(-31, 21, 0), V(0, 0, 1), 0.55),
    Part.Circle(V(-31, 11, 0), V(0, 0, 1), 0.55),
    Part.Circle(V(29, 39, 0), V(0, 0, 1), 0.4),
    Part.Circle(V(-25, 58, 0), V(0, 0, 1), 0.4),
    Part.Circle(V(-15, 59.5, 0), V(0, 0, 1), 0.4),
], False)
sketch5.addConstraint([
    Sketcher.Constraint("Equal", 0, 1),
    Sketcher.Constraint("Equal", 1, 2),
    Sketcher.Constraint("Equal", 2, 3),
    Sketcher.Constraint("Equal", 3, 4),
    Sketcher.Constraint("Equal", 4, 5),
    Sketcher.Constraint("Equal", 5, 6),
    Sketcher.Constraint("Equal", 6, 7),
    Sketcher.Constraint("Equal", 7, 8),
    Sketcher.Constraint("Equal", 8, 9),
    Sketcher.Constraint("Equal", 9, 10),
    Sketcher.Constraint("Equal", 10, 11),
    Sketcher.Constraint("Equal", 11, 12),
    Sketcher.Constraint("Equal", 12, 13),
    Sketcher.Constraint("Equal", 14, 15),
    Sketcher.Constraint("Equal", 15, 16),
    Sketcher.Constraint("Horizontal", 0, 3, 2, 3),
    Sketcher.Constraint("Horizontal", 1, 3, 3, 3),
    Sketcher.Constraint("Horizontal", 2, 3, 4, 3),
    Sketcher.Constraint("Horizontal", 3, 3, 5, 3),
    Sketcher.Constraint("Horizontal", 4, 3, 6, 3),
    Sketcher.Constraint("Horizontal", 5, 3, 7, 3),
    Sketcher.Constraint("Vertical", 0, 3, 1, 3),
    Sketcher.Constraint("Vertical", 2, 3, 3, 3),
    Sketcher.Constraint("Vertical", 4, 3, 5, 3),
    Sketcher.Constraint("Vertical", 6, 3, 7, 3),
    Sketcher.Constraint("Vertical", 8, 3, 9, 3),
    Sketcher.Constraint("Vertical", 10, 3, 11, 3),
    Sketcher.Constraint("Vertical", 12, 3, 13, 3),
    Sketcher.Constraint("Diameter", 0, 1.1),
    Sketcher.Constraint("Diameter", 14, 0.8),
    Sketcher.Constraint("DistanceX", 0, 3, -1, 1, 40.0),
    Sketcher.Constraint("DistanceX", 4, 3, -1, 1, 35.0),
    Sketcher.Constraint("DistanceX", 6, 3, -1, 1, 32.0),
    Sketcher.Constraint("DistanceX", 8, 3, -1, 1, 41.0),
    Sketcher.Constraint("DistanceY", -1, 1, 8, 3, 36.0),
    Sketcher.Constraint("DistanceY", -1, 1, 9, 3, 26.0),
    Sketcher.Constraint("DistanceX", 10, 3, -1, 1, 37.0),
    Sketcher.Constraint("DistanceX", 12, 3, -1, 1, 31.0),
    Sketcher.Constraint("DistanceY", -1, 1, 12, 3, 21.0),
    Sketcher.Constraint("DistanceY", -1, 1, 13, 3, 11.0),
    Sketcher.Constraint("DistanceX", -1, 1, 14, 3, 29.0),
    Sketcher.Constraint("DistanceY", -1, 1, 14, 3, 39.0),
    Sketcher.Constraint("DistanceX", 15, 3, -1, 1, 25.0),
    Sketcher.Constraint("DistanceY", -1, 1, 15, 3, 58.0),
    Sketcher.Constraint("DistanceX", 16, 3, -1, 1, 15.0),
    Sketcher.Constraint("DistanceY", 1, 3, 0, 3, 10.0),
    Sketcher.Constraint("DistanceY", 10, 3, 3, 3, 37.0),
    Sketcher.Constraint("DistanceY", 11, 3, 10, 3, 10.0),
    Sketcher.Constraint("DistanceY", 6, 3, 16, 3, 1.0),
    Sketcher.Constraint("DistanceY", -1, 1, 0, 3, 58.5),
    Sketcher.Constraint("DistanceX", 2, 3, -1, 1, 37.5),
])
sketch5.setExpression("Constraints[28]", "Params.sketch5_diameter")
sketch5.setExpression("Constraints[29]", "Params.sketch5_diameter2")
pocket4 = body.newObject("PartDesign::Pocket", "Pocket003")
pocket4.Profile = sketch5
pocket4.setExpression("Length", "Params.pocket4_length")

sketch6 = body.newObject("Sketcher::SketchObject", "Sketch005")
sketch6.AttachmentSupport = (doc.getObject("YZ_Plane"), [""])
sketch6.MapMode = "FlatFace"
sketch6.AttachmentOffset = App.Placement(V(0, 0, 1.5), App.Rotation())
sketch6.addGeometry(Part.Circle(V(-6, 36.3, 0), V(0, 0, 1), 0.4), False)
sketch6.addConstraint([
    Sketcher.Constraint("Diameter", 0, 0.8),
    Sketcher.Constraint("DistanceX", 0, 3, -1, 1, 6.0),
    Sketcher.Constraint("DistanceY", -1, 1, 0, 3, 36.3),
])
sketch6.setExpression("Constraints[0]", "Params.sketch6_diameter")
pocket5 = body.newObject("PartDesign::Pocket", "Pocket004")
pocket5.Profile = sketch6
pocket5.setExpression("Length", "Params.pocket5_length")

doc.recompute()
